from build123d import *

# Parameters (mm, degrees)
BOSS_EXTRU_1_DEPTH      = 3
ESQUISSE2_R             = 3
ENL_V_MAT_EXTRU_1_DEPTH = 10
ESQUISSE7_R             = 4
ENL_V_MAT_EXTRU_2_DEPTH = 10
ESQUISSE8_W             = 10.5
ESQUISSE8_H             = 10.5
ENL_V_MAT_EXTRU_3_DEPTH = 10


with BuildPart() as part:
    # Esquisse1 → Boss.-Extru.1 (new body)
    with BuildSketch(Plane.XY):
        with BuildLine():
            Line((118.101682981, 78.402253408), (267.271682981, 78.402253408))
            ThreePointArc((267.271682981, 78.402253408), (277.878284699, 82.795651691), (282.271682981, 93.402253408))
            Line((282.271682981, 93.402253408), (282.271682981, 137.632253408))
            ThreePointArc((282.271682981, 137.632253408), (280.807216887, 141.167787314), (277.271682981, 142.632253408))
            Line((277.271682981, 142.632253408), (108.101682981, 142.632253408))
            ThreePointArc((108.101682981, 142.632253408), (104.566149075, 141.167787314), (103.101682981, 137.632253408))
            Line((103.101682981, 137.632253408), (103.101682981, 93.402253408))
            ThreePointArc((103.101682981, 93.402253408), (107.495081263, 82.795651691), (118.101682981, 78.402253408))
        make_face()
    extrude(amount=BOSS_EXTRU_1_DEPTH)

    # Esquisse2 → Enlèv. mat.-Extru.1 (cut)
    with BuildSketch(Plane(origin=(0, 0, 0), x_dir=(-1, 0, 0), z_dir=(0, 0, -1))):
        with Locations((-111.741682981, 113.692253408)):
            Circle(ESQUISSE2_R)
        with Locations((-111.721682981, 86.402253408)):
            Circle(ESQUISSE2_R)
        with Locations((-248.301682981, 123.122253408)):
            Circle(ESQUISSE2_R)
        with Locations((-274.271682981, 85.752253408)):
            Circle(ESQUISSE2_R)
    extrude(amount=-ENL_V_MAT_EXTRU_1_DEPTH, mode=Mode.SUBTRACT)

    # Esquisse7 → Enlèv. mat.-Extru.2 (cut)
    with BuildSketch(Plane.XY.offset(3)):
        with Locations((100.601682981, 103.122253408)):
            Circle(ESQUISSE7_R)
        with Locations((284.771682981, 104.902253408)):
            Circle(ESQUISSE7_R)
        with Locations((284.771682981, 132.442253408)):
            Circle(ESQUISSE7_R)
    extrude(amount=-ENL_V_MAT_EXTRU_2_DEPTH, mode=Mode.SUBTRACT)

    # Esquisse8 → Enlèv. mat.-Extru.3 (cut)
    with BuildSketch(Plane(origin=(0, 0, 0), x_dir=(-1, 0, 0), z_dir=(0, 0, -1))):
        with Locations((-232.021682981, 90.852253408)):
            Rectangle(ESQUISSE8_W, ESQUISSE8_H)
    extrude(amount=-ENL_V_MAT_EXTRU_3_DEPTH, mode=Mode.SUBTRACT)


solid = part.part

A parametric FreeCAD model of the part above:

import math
import FreeCAD as App
import Part
import Sketcher
Q = App.Units.Quantity

doc = App.newDocument("Part")
body = doc.addObject("PartDesign::Body", "Body")

# Sketch on XY plane
sketch1 = body.newObject("Sketcher::SketchObject", "Sketch")
sketch1.AttachmentSupport = (doc.getObject("XY_Plane"), [""])
sketch1.MapMode = "FlatFace"
sketch1.addGeometry([
    Part.LineSegment(App.Vector(118, 78, 0), App.Vector(267, 78, 0)),  # 0
    Part.ArcOfCircle(Part.Circle(App.Vector(267, 93, 0), App.Vector(0, 0, 1), 15), math.radians(-90), math.radians(0)),  # 1
    Part.LineSegment(App.Vector(282, 93, 0), App.Vector(282, 138, 0)),  # 2
    Part.ArcOfCircle(Part.Circle(App.Vector(277, 138, 0), App.Vector(0, 0, 1), 5), math.radians(0), math.radians(90)),  # 3
    Part.LineSegment(App.Vector(277, 143, 0), App.Vector(108, 143, 0)),  # 4
    Part.ArcOfCircle(Part.Circle(App.Vector(108, 138, 0), App.Vector(0, 0, 1), 5), math.radians(90), math.radians(180)),  # 5
    Part.LineSegment(App.Vector(103, 138, 0), App.Vector(103, 93, 0)),  # 6
    Part.ArcOfCircle(Part.Circle(App.Vector(118, 93, 0), App.Vector(0, 0, 1), 15), math.radians(-180), math.radians(-90)),  # 7
], False)
sketch1.addConstraint([
    Sketcher.Constraint("Tangent", 0, 2, 1, 1),
    Sketcher.Constraint("Tangent", 1, 2, 2, 1),
    Sketcher.Constraint("Tangent", 2, 2, 3, 1),
    Sketcher.Constraint("Tangent", 3, 2, 4, 1),
    Sketcher.Constraint("Tangent", 4, 2, 5, 1),
    Sketcher.Constraint("Tangent", 5, 2, 6, 1),
    Sketcher.Constraint("Tangent", 6, 2, 7, 1),
    Sketcher.Constraint("Tangent", 7, 2, 0, 1),
    Sketcher.Constraint("Horizontal", 0),
    Sketcher.Constraint("Vertical", 2),
    Sketcher.Constraint("Horizontal", 4),
    Sketcher.Constraint("Vertical", 6),
    Sketcher.Constraint("Equal", 3, 5),
    Sketcher.Constraint("Equal", 1, 7),
    Sketcher.Constraint("Radius", 1, Q("15 mm")),
    Sketcher.Constraint("Radius", 3, Q("5 mm")),
    Sketcher.Constraint("DistanceX", 0, 1, 0, 2, Q("149.17 mm")),
    Sketcher.Constraint("DistanceY", 2, 1, 2, 2, Q("44.23 mm")),
    Sketcher.Constraint("DistanceX", -1, 1, 1, 3, Q("267.271683 mm")),
    Sketcher.Constraint("DistanceY", -1, 1, 1, 3, Q("93.402253 mm")),
])
pad1 = body.newObject("PartDesign::Pad", "Pad")
pad1.Profile = sketch1
pad1.Length = 3

# Sketch on XY plane
sketch2 = body.newObject("Sketcher::SketchObject", "Sketch001")
sketch2.AttachmentSupport = (doc.getObject("XY_Plane"), [""])
sketch2.MapMode = "FlatFace"
sketch2.addGeometry([
    Part.Circle(App.Vector(111.7, 113.7, 0), App.Vector(0, 0, 1), 3),
    Part.Circle(App.Vector(111.7, 86.4, 0), App.Vector(0, 0, 1), 3),
    Part.Circle(App.Vector(248.3, 123.1, 0), App.Vector(0, 0, 1), 3),
    Part.Circle(App.Vector(274.3, 85.8, 0), App.Vector(0, 0, 1), 3),
], False)
sketch2.addConstraint([
    Sketcher.Constraint("Equal", 0, 1),
    Sketcher.Constraint("Equal", 1, 2),
    Sketcher.Constraint("Equal", 2, 3),
    Sketcher.Constraint("Diameter", 0, Q("6 mm")),
    Sketcher.Constraint("DistanceX", 1, 3, 0, 3, Q("0.02 mm")),
    Sketcher.Constraint("DistanceY", 1, 3, 0, 3, Q("27.29 mm")),
    Sketcher.Constraint("DistanceX", 0, 3, 2, 3, Q("136.56 mm")),
    Sketcher.Constraint("DistanceY", 0, 3, 2, 3, Q("9.43 mm")),
    Sketcher.Constraint("DistanceX", 2, 3, 3, 3, Q("25.97 mm")),
    Sketcher.Constraint("DistanceY", 3, 3, 2, 3, Q("37.37 mm")),
    Sketcher.Constraint("DistanceX", -1, 1, 0, 3, Q("111.741683 mm")),
    Sketcher.Constraint("DistanceY", -1, 1, 0, 3, Q("113.692253 mm")),
])
pocket1 = body.newObject("PartDesign::Pocket", "Pocket")
pocket1.Profile = sketch2
pocket1.Length = 10
pocket1.Reversed = True

# Sketch on XY plane
sketch3 = body.newObject("Sketcher::SketchObject", "Sketch002")
sketch3.AttachmentSupport = (doc.getObject("XY_Plane"), [""])
sketch3.MapMode = "FlatFace"
sketch3.AttachmentOffset = App.Placement(App.Vector(0, 0, 3), App.Rotation())
sketch3.addGeometry([
    Part.Circle(App.Vector(100.6, 103.1, 0), App.Vector(0, 0, 1), 4),
    Part.Circle(App.Vector(284.8, 104.9, 0), App.Vector(0, 0, 1), 4),
    Part.Circle(App.Vector(284.8, 132.4, 0), App.Vector(0, 0, 1), 4),
], False)
sketch3.addConstraint([
    Sketcher.Constraint("Equal", 0, 1),
    Sketcher.Constraint("Equal", 1, 2),
    Sketcher.Constraint("Vertical", 1, 3, 2, 3),
    Sketcher.Constraint("Diameter", 0, Q("8 mm")),
    Sketcher.Constraint("DistanceX", 0, 3, 1, 3, Q("184.17 mm")),
    Sketcher.Constraint("DistanceY", 0, 3, 1, 3, Q("1.78 mm")),
    Sketcher.Constraint("DistanceY", 1, 3, 2, 3, Q("27.54 mm")),
    Sketcher.Constraint("DistanceX", -1, 1, 0, 3, Q("100.601683 mm")),
    Sketcher.Constraint("DistanceY", -1, 1, 0, 3, Q("103.122253 mm")),
])
pocket2 = body.newObject("PartDesign::Pocket", "Pocket001")
pocket2.Profile = sketch3
pocket2.Length = 10

# Sketch on XY plane
sketch4 = body.newObject("Sketcher::SketchObject", "Sketch003")
sketch4.AttachmentSupport = (doc.getObject("XY_Plane"), [""])
sketch4.MapMode = "FlatFace"
sketch4.addGeometry([
    Part.LineSegment(App.Vector(237, 96, 0), App.Vector(237, 86, 0)),
    Part.LineSegment(App.Vector(237, 86, 0), App.Vector(227, 86, 0)),
    Part.LineSegment(App.Vector(227, 86, 0), App.Vector(227, 96, 0)),
    Part.LineSegment(App.Vector(227, 96, 0), App.Vector(237, 96, 0)),
], False)
sketch4.addConstraint([
    Sketcher.Constraint("Coincident", 0, 2, 1, 1),
    Sketcher.Constraint("Coincident", 1, 2, 2, 1),
    Sketcher.Constraint("Coincident", 2, 2, 3, 1),
    Sketcher.Constraint("Coincident", 3, 2, 0, 1),
    Sketcher.Constraint("Vertical", 0),
    Sketcher.Constraint("Horizontal", 1),
    Sketcher.Constraint("Vertical", 2),
    Sketcher.Constraint("Horizontal", 3),
    Sketcher.Constraint("Equal", 3, 0),
    Sketcher.Constraint("DistanceX", 1, 2, 1, 1, Q("10.5 mm")),
    Sketcher.Constraint("DistanceX", -1, 1, 0, 2, Q("237.271683 mm")),
    Sketcher.Constraint("DistanceY", -1, 1, 0, 2, Q("85.602253 mm")),
])
pocket3 = body.newObject("PartDesign::Pocket", "Pocket002")
pocket3.Profile = sketch4
pocket3.Length = 10
pocket3.Reversed = True

doc.recompute()
